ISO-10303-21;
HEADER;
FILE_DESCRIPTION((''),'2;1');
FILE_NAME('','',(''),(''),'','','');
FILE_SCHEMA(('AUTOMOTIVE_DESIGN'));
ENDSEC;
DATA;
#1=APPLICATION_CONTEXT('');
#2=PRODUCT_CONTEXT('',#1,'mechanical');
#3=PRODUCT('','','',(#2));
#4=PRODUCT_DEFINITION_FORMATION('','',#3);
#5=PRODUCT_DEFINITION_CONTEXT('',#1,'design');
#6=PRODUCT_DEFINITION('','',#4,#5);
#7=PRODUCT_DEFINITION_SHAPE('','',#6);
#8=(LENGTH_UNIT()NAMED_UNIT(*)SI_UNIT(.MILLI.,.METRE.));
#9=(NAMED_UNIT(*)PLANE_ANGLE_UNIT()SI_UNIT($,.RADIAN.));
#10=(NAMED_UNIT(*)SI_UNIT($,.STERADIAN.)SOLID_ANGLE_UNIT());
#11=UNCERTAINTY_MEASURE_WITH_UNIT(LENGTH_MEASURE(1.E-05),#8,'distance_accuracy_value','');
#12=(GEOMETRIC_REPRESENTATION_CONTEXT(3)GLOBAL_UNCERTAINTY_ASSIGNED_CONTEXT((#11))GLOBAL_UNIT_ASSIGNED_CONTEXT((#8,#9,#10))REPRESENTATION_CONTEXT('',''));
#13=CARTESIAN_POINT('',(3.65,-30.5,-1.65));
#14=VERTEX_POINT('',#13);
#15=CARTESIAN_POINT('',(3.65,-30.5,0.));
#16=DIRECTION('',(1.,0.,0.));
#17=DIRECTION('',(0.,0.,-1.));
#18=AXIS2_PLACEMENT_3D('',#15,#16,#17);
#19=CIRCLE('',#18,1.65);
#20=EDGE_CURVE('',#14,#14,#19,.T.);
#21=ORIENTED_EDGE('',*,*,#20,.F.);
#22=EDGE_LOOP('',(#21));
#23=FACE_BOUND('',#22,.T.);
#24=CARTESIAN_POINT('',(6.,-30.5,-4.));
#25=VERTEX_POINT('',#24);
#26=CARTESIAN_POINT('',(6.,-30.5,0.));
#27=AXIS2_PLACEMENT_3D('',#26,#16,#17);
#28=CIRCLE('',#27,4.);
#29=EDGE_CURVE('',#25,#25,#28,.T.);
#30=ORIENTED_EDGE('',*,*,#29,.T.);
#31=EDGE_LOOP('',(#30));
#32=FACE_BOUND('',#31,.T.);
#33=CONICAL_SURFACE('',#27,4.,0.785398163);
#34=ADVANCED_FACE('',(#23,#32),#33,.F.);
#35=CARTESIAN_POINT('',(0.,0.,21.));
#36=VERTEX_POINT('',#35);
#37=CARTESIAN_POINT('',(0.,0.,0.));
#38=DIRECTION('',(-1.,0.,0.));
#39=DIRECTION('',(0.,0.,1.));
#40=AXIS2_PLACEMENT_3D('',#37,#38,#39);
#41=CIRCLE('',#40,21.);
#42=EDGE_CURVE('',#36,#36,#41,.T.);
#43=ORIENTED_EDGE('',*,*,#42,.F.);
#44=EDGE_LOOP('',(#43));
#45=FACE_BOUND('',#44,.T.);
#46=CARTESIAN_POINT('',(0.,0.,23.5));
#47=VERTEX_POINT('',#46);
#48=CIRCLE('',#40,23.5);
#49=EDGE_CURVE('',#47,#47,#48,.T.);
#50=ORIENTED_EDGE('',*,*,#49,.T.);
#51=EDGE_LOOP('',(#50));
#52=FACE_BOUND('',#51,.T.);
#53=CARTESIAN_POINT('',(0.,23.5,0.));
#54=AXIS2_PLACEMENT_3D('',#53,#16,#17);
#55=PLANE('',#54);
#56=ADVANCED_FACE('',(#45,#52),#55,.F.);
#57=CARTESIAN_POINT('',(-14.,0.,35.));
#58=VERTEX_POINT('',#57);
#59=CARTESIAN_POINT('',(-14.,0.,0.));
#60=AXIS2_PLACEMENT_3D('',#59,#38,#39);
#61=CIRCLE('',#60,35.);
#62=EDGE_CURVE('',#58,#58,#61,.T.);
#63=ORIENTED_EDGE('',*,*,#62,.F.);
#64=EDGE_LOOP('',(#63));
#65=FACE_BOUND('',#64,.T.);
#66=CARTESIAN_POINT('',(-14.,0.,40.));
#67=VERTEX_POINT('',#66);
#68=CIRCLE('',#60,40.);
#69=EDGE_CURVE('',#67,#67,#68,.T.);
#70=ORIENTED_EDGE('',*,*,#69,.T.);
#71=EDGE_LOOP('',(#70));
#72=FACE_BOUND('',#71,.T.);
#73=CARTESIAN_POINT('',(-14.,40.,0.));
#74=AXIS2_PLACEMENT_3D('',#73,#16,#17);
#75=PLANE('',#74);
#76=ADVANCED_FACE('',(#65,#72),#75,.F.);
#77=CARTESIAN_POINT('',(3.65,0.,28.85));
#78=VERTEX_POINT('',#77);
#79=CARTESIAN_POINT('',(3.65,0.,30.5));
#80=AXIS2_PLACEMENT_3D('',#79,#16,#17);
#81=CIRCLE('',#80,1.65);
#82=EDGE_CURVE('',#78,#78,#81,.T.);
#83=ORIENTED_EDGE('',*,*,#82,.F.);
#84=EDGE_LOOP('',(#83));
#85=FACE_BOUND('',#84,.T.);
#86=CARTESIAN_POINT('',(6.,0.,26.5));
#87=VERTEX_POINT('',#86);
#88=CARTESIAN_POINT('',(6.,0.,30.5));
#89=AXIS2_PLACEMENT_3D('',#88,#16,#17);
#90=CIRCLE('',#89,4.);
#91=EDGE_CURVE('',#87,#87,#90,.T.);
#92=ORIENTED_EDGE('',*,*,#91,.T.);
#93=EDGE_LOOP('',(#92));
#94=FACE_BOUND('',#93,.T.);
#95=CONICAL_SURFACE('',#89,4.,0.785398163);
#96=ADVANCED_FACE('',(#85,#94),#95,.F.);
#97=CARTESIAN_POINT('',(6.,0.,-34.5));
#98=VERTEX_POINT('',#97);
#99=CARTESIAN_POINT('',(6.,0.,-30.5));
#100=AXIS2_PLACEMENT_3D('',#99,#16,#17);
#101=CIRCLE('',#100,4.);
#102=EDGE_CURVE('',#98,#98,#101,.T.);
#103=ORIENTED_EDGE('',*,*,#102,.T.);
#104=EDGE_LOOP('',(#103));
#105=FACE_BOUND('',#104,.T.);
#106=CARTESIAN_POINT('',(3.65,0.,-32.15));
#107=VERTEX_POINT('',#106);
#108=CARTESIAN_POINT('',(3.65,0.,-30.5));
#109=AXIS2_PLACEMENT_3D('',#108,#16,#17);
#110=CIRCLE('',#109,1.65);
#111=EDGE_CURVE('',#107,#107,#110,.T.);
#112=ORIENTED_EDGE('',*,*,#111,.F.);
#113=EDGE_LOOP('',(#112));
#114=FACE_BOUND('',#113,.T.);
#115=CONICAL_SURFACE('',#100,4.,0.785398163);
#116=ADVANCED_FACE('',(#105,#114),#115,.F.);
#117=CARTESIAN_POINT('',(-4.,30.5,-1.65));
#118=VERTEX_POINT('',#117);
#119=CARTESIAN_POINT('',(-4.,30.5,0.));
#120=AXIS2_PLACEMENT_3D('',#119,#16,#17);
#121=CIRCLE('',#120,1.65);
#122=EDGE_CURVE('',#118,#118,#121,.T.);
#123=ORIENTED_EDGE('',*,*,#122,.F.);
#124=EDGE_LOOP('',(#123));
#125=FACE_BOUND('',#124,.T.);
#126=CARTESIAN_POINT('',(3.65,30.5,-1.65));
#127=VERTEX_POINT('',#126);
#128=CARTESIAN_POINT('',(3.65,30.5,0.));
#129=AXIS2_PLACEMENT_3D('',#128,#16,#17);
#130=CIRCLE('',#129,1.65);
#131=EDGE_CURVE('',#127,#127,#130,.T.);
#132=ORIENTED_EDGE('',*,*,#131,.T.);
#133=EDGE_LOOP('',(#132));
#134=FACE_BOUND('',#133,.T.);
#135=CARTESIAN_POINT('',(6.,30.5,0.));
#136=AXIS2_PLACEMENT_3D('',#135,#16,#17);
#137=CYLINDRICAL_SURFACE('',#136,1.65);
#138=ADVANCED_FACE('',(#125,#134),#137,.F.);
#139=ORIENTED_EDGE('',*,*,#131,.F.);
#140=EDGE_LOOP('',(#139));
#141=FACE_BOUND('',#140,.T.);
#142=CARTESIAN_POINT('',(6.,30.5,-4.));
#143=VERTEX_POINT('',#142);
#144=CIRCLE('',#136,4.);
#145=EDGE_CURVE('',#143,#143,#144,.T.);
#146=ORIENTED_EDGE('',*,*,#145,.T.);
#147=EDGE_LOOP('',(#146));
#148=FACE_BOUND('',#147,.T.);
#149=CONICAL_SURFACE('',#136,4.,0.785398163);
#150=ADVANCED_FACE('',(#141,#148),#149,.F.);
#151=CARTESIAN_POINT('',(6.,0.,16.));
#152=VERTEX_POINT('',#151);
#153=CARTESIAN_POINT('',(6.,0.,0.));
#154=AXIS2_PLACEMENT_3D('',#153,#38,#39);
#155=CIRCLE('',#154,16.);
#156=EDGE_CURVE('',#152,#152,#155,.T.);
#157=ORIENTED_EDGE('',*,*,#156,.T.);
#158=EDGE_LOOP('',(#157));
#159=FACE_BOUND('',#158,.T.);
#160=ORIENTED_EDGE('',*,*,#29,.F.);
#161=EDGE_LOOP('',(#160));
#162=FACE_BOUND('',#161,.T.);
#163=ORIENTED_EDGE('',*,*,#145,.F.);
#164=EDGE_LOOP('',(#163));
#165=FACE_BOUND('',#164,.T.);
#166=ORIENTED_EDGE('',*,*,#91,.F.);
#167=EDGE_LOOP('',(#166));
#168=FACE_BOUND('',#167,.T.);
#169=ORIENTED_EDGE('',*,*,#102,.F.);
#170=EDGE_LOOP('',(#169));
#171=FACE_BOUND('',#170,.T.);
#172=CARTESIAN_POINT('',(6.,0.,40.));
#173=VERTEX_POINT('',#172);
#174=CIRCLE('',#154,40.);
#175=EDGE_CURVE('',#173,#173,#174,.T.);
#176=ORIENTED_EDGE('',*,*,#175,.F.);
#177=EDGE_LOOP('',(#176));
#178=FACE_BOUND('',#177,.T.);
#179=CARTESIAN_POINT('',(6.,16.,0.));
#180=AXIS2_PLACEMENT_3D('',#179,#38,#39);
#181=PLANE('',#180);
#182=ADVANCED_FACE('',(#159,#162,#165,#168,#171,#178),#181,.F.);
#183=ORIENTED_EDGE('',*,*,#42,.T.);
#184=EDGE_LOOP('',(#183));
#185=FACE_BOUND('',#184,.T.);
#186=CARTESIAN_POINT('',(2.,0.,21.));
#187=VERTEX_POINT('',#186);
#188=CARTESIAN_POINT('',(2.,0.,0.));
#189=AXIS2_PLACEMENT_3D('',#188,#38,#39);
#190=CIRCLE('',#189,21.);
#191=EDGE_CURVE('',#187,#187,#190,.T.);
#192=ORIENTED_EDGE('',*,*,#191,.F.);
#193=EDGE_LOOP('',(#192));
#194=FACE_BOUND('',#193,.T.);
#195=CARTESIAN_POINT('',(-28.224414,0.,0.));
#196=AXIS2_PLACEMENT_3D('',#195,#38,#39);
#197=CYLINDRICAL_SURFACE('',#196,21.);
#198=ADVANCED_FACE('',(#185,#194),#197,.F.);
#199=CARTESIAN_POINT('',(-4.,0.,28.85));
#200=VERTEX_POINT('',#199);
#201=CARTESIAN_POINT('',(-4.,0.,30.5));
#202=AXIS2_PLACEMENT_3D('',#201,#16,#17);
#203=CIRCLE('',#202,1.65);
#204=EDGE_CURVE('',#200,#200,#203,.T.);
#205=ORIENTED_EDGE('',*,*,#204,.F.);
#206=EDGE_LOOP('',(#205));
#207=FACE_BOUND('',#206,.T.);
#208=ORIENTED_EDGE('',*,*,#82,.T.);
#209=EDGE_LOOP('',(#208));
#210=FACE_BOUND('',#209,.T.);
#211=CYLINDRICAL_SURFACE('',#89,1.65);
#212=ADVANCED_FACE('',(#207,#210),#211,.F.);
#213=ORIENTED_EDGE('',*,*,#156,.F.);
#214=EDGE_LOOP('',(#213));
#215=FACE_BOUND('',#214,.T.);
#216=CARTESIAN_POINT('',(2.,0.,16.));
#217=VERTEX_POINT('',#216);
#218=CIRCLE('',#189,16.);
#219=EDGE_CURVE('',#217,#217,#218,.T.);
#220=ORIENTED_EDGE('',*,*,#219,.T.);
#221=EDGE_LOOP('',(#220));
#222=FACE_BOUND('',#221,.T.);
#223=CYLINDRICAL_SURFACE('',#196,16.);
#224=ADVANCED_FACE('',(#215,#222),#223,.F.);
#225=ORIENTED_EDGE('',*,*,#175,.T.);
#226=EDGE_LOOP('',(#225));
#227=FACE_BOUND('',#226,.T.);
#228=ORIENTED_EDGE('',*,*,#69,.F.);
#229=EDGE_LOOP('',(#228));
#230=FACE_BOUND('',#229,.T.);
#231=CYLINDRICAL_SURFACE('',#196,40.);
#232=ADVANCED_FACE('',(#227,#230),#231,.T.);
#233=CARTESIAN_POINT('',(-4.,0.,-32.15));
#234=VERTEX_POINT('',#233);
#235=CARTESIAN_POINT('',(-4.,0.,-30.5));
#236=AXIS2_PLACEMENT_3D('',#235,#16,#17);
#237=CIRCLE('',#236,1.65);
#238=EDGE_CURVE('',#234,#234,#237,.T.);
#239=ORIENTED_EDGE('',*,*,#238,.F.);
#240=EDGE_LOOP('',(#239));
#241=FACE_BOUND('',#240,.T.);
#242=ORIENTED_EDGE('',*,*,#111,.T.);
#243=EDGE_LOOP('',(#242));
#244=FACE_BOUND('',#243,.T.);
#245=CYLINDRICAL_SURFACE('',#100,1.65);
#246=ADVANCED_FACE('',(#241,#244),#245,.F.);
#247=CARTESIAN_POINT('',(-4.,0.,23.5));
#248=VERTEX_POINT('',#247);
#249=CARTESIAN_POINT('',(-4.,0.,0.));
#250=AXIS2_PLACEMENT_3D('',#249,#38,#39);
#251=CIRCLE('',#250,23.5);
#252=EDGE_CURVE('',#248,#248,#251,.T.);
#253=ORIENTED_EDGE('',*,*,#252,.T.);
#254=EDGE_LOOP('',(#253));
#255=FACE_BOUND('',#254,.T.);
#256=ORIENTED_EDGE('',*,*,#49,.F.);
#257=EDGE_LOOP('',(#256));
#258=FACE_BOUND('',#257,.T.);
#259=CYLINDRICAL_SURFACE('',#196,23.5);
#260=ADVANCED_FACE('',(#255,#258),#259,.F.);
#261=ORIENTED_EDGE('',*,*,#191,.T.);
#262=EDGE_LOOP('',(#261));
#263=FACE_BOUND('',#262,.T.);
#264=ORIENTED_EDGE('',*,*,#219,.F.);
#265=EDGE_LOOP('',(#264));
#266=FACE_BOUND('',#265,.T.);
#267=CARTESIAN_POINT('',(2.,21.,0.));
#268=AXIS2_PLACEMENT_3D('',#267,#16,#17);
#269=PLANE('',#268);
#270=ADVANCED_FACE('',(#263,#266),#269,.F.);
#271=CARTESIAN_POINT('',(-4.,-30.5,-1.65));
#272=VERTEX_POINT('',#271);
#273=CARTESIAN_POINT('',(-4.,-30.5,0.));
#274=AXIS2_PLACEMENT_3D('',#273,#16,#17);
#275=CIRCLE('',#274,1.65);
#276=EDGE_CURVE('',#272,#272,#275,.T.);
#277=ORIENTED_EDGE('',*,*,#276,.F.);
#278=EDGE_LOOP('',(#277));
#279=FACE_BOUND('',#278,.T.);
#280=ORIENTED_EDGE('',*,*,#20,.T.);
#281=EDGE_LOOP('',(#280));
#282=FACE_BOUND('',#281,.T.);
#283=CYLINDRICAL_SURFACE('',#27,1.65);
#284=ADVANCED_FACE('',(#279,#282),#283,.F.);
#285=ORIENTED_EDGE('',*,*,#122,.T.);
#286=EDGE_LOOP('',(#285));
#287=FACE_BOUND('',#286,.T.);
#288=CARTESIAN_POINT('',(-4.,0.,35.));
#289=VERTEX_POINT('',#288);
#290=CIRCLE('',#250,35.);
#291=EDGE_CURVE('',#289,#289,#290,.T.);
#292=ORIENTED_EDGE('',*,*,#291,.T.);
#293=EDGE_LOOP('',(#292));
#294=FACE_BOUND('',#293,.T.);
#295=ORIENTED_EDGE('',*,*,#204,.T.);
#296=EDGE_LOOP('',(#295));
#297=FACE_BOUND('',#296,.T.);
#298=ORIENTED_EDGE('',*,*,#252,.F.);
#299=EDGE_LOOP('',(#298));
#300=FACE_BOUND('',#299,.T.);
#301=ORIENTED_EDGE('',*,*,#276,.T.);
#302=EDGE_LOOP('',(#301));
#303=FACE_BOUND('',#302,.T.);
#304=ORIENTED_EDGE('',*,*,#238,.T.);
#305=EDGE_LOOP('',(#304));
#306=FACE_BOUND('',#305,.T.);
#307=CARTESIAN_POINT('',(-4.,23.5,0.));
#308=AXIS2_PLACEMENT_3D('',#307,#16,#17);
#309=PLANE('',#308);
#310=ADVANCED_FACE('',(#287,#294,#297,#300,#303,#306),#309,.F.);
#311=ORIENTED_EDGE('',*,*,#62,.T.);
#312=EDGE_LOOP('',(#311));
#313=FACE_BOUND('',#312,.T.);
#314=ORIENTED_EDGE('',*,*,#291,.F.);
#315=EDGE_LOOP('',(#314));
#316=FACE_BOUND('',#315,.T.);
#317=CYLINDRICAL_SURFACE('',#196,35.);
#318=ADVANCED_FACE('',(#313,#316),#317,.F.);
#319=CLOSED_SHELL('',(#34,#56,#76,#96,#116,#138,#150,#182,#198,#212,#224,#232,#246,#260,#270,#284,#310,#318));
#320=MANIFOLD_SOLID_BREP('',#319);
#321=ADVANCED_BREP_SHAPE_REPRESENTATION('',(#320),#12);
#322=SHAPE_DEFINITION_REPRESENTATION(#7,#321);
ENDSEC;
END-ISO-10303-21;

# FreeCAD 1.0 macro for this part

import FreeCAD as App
import Part
import Sketcher


def add_polygon(sketch, points):
    """Adds a closed chain of lines whose ends are joined by coincident constraints."""
    first, n = sketch.GeometryCount, len(points)
    for a, b in zip(points, points[1:] + points[:1]):
        sketch.addGeometry(Part.LineSegment(App.Vector(*a, 0), App.Vector(*b, 0)), False)
    for i in range(n):
        sketch.addConstraint(Sketcher.Constraint("Coincident", first + i, 2, first + (i + 1) % n, 1))

doc = App.newDocument("Part")
body = doc.addObject("PartDesign::Body", "Body")

# Sketch on XY plane
sketch1 = body.newObject("Sketcher::SketchObject", "Sketch")
sketch1.AttachmentSupport = (doc.getObject("XY_Plane"), [""])
sketch1.MapMode = "FlatFace"
add_polygon(sketch1, [(6, 40), (-14, 40), (-14, 35), (-4, 35), (-4, 23.5), (0, 23.5), (0, 21), (2, 21), (2, 16), (6, 16)])  # lines 0-9
sketch1.addConstraint([
    Sketcher.Constraint("Horizontal", 0),
    Sketcher.Constraint("Vertical", 1),
    Sketcher.Constraint("Horizontal", 2),
    Sketcher.Constraint("Vertical", 3),
    Sketcher.Constraint("Horizontal", 4),
    Sketcher.Constraint("Vertical", 5),
    Sketcher.Constraint("Horizontal", 6),
    Sketcher.Constraint("Vertical", 7),
    Sketcher.Constraint("Horizontal", 8),
    Sketcher.Constraint("Vertical", 9),
    Sketcher.Constraint("PointOnObject", 4, 2, -2),
    Sketcher.Constraint("Equal", 4, 8),
    Sketcher.Constraint("Equal", 1, 7),
    Sketcher.Constraint("DistanceX", 0, 2, 0, 1, 20.0),
    Sketcher.Constraint("DistanceX", 2, 1, 2, 2, 10.0),
    Sketcher.Constraint("DistanceX", 4, 1, 4, 2, 4.0),
    Sketcher.Constraint("DistanceY", 1, 2, 1, 1, 5.0),
    Sketcher.Constraint("DistanceY", 9, 1, 9, 2, 24.0),
    Sketcher.Constraint("DistanceY", 3, 2, 3, 1, 11.5),
    Sketcher.Constraint("DistanceY", -1, 1, 0, 2, 40.0),
])
revolution = body.newObject("PartDesign::Revolution", "Revolution")
revolution.Profile = sketch1
revolution.ReferenceAxis = (sketch1, ["H_Axis"])
revolution.Angle = 360

# Sketch on YZ plane
sketch2 = body.newObject("Sketcher::SketchObject", "Sketch001")
sketch2.AttachmentSupport = (doc.getObject("YZ_Plane"), [""])
sketch2.MapMode = "FlatFace"
sketch2.AttachmentOffset = App.Placement(App.Vector(0, 0, 6), App.Rotation())
sketch2.addGeometry([
    Part.Circle(App.Vector(30.5, 0, 0), App.Vector(0, 0, 1), 1.6),
    Part.Circle(App.Vector(0, -30.5, 0), App.Vector(0, 0, 1), 1.6),
    Part.Circle(App.Vector(-30.5, 0, 0), App.Vector(0, 0, 1), 1.6),
    Part.Circle(App.Vector(0, 30.5, 0), App.Vector(0, 0, 1), 1.6),
], False)
sketch2.addConstraint([
    Sketcher.Constraint("Equal", 0, 1),
    Sketcher.Constraint("Equal", 1, 2),
    Sketcher.Constraint("Equal", 2, 3),
    Sketcher.Constraint("Symmetric", 0, 3, 2, 3, -1, 1),
    Sketcher.Constraint("Symmetric", 1, 3, 3, 3, -1, 1),
    Sketcher.Constraint("PointOnObject", 0, 3, -1),
    Sketcher.Constraint("PointOnObject", 1, 3, -2),
    Sketcher.Constraint("Diameter", 0, 3.3),
    Sketcher.Constraint("DistanceX", 2, 3, 0, 3, 61.0),
    Sketcher.Constraint("DistanceY", 1, 3, 3, 3, 61.0),
])
doc.recompute()
hole = body.newObject("PartDesign::Hole", "Hole")
hole.Profile = sketch2
hole.ThreadType = "None"
hole.Diameter = 3.3
hole.DepthType = "ThroughAll"
hole.HoleCutType = "Countersink"
hole.HoleCutDiameter = 8
hole.HoleCutCountersinkAngle = 90

doc.recompute()
